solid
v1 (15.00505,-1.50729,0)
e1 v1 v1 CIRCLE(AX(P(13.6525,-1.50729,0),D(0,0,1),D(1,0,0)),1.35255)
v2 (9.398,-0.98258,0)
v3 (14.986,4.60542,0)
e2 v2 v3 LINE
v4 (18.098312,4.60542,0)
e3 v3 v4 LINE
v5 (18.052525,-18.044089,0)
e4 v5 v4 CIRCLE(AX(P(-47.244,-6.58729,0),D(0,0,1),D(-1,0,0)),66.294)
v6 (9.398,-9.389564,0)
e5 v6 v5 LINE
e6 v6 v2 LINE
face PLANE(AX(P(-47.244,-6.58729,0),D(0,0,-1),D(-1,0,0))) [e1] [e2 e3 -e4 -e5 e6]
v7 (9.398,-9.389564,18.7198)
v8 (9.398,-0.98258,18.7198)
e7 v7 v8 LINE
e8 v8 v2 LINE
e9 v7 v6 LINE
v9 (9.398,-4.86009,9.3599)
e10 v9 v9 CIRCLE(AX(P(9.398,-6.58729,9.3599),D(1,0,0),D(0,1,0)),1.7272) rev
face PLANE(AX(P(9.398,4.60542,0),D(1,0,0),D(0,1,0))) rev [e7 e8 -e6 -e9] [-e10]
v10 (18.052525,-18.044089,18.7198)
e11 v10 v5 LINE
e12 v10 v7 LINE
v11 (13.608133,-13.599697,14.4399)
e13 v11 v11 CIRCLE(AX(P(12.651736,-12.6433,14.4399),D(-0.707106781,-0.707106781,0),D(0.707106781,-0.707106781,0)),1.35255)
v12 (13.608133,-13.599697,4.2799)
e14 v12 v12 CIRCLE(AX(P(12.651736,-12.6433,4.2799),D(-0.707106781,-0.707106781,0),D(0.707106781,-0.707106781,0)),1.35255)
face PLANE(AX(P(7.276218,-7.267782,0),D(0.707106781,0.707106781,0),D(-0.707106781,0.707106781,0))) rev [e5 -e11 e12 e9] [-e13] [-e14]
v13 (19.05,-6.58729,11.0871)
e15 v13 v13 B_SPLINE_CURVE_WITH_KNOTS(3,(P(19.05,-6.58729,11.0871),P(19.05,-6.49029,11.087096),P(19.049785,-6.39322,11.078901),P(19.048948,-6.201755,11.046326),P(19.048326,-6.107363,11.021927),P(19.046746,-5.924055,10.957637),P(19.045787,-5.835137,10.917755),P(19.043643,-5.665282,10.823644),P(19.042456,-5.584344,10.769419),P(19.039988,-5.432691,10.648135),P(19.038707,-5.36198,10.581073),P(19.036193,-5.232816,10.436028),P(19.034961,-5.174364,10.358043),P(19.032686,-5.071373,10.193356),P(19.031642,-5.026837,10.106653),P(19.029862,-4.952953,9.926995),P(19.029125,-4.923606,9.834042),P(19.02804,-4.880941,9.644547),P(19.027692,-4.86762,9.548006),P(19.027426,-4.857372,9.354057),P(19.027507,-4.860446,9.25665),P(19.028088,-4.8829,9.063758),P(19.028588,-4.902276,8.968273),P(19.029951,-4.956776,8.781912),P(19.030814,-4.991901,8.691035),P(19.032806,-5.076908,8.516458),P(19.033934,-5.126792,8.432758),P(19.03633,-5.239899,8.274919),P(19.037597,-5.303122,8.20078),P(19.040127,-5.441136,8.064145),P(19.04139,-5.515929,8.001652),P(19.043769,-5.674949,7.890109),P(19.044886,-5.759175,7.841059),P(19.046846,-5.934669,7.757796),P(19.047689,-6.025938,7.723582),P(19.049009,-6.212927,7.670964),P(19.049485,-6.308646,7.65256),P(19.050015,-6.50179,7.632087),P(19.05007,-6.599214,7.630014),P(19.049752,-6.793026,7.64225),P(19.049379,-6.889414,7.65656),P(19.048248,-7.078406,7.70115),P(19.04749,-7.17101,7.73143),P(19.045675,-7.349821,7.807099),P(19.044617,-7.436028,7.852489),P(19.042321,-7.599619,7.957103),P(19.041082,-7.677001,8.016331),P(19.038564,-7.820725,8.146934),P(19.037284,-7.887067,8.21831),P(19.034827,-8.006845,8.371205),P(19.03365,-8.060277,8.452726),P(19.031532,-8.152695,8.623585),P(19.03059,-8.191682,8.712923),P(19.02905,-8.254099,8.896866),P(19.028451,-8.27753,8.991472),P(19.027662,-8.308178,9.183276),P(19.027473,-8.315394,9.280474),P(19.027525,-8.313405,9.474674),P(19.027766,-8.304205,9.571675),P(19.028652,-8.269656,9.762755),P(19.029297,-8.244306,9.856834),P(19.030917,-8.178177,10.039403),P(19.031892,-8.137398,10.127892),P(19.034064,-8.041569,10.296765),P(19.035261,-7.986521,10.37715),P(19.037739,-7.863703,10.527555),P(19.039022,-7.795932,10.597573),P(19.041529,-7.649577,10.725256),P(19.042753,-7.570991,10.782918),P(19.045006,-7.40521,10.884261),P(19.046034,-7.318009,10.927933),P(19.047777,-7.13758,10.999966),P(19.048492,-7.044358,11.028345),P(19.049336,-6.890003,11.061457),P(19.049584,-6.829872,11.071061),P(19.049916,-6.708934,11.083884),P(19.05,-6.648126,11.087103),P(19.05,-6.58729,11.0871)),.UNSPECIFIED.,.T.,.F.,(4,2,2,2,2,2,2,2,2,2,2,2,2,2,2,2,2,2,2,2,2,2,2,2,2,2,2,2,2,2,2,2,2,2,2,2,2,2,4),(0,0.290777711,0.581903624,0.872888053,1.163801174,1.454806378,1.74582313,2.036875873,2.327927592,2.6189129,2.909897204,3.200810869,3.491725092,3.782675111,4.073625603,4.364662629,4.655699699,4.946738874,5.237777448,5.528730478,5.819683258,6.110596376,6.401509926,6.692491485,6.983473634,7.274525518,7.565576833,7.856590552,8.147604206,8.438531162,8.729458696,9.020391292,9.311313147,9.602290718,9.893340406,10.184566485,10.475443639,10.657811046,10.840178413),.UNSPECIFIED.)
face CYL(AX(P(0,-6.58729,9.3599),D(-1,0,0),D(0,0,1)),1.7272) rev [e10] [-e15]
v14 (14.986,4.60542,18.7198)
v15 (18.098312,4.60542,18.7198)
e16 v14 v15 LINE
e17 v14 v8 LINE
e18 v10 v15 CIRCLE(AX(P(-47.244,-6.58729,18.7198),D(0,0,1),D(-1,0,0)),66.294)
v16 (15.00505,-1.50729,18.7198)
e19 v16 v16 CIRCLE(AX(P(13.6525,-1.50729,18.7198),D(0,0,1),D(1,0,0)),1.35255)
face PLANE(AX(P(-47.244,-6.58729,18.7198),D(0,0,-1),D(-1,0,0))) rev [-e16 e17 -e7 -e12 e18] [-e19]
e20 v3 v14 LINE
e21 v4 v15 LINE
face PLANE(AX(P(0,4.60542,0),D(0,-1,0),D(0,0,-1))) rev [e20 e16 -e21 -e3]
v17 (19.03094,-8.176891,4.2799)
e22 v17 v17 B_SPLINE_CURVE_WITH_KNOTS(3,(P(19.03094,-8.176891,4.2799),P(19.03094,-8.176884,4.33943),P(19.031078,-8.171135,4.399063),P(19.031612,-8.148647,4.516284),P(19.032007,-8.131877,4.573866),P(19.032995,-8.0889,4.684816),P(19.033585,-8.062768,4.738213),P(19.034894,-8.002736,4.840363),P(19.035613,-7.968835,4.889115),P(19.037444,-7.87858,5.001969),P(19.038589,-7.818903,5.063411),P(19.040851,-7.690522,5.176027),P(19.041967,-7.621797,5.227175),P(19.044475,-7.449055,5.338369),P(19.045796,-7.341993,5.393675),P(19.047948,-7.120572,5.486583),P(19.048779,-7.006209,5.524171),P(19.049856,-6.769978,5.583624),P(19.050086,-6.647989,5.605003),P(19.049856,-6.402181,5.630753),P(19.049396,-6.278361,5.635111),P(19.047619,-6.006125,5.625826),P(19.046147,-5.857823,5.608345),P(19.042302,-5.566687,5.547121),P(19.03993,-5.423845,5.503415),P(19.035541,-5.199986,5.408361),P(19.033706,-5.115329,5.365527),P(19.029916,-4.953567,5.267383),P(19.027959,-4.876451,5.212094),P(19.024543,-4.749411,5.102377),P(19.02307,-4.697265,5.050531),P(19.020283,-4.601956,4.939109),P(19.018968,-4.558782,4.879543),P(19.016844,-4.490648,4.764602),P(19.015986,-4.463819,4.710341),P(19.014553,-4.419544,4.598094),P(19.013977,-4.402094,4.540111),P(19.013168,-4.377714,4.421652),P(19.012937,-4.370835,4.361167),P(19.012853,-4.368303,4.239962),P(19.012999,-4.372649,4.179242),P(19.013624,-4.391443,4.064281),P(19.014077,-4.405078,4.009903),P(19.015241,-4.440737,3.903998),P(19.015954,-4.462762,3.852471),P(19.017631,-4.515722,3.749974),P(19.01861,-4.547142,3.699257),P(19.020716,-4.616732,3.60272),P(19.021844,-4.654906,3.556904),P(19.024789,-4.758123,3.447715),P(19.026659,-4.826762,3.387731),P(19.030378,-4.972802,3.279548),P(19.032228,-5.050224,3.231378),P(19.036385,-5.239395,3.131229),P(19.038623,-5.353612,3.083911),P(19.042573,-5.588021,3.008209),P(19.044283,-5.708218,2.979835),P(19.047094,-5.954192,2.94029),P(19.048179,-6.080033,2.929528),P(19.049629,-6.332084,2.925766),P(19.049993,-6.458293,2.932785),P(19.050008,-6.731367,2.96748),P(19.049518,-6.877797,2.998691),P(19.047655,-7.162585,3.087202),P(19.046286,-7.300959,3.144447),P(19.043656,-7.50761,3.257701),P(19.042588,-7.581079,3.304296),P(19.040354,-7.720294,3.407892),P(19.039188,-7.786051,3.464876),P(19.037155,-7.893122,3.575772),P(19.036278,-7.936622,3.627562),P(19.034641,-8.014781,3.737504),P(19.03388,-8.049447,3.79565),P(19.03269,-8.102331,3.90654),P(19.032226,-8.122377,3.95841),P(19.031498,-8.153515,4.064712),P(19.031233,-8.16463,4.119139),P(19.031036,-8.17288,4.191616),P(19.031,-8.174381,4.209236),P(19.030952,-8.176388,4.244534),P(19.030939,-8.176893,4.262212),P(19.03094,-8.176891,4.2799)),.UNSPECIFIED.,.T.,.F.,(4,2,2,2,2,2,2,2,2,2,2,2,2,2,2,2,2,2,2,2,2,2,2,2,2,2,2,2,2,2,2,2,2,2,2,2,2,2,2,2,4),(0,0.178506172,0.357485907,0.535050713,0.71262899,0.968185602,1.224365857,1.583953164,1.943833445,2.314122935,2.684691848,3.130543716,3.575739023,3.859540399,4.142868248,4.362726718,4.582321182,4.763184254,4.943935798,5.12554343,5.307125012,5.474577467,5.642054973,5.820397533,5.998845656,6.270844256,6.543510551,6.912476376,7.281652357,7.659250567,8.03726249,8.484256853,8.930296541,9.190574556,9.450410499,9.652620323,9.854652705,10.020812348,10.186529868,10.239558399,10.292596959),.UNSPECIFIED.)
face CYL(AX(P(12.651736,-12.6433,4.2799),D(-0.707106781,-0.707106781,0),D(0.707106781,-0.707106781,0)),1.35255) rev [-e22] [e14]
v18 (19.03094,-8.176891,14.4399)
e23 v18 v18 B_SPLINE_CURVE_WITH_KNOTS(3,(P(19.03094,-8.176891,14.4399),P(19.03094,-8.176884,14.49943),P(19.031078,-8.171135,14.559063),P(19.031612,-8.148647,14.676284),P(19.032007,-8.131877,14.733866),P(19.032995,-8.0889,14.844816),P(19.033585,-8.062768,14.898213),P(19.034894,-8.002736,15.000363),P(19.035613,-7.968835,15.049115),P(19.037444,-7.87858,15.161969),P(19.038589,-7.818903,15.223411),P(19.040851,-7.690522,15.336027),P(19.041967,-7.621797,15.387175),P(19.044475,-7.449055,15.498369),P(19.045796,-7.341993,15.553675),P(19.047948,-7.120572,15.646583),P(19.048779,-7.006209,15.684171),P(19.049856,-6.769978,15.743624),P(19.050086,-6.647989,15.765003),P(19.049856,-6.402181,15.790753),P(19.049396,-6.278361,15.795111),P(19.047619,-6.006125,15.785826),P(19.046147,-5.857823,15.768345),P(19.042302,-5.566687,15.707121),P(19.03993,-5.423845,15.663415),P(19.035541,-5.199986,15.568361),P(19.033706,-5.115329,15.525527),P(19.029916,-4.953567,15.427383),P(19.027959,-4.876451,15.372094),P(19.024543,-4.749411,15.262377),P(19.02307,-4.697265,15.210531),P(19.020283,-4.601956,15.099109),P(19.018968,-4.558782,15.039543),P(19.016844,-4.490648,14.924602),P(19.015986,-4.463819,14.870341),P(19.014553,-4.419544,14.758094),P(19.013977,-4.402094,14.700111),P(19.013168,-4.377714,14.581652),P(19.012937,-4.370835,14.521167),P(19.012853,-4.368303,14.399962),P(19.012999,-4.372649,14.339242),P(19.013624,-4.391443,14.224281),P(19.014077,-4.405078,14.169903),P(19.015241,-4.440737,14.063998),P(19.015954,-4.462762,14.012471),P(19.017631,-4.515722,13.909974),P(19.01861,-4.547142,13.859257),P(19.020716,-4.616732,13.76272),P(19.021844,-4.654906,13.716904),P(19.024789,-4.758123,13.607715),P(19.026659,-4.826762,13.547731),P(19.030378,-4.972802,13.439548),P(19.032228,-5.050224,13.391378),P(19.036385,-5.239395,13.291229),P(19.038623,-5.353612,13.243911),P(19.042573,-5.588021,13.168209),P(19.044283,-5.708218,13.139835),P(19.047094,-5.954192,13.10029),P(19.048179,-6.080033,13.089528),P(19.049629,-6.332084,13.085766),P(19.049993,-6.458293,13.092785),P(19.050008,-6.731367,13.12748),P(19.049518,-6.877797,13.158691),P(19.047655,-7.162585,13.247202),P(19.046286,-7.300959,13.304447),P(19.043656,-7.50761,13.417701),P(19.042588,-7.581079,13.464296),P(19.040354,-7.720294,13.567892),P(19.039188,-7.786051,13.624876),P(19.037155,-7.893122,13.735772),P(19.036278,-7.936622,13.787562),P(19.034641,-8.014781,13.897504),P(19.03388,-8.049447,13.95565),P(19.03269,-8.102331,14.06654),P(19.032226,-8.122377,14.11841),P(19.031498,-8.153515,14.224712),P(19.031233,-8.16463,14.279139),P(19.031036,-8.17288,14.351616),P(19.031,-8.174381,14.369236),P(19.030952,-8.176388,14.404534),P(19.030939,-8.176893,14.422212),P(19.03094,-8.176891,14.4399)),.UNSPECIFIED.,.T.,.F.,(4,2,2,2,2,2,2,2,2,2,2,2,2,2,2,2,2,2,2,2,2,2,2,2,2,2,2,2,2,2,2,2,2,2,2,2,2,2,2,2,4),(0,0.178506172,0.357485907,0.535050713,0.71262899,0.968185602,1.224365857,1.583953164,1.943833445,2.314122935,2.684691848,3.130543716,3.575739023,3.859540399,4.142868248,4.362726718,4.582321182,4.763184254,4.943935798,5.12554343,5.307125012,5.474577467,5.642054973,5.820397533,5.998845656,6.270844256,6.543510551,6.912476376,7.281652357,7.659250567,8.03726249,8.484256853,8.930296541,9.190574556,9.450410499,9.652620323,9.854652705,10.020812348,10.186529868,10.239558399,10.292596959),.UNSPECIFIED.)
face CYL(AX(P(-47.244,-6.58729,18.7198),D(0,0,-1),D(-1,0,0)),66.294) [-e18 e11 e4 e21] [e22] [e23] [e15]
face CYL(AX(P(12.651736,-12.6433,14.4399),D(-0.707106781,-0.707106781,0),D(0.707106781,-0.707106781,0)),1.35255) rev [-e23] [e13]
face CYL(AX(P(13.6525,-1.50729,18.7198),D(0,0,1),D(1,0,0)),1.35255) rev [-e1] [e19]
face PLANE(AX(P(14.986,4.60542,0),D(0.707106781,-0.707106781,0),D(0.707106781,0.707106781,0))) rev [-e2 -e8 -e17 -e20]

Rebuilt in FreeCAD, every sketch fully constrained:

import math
import FreeCAD as App
import Part
import Sketcher

V = App.Vector
Q = App.Units.Quantity


def edges_at(feature, points):
    """Names of the edges that pass closest to the given points."""
    edges = feature.Shape.Edges
    near = lambda p: min(range(len(edges)), key=lambda i: edges[i].distToShape(Part.Vertex(*p))[0])
    return sorted({f"Edge{near(p) + 1}" for p in points})


def add_polygon(sketch, points):
    """Adds a closed chain of lines whose ends are joined by coincident constraints."""
    first, n = sketch.GeometryCount, len(points)
    for a, b in zip(points, points[1:] + points[:1]):
        sketch.addGeometry(Part.LineSegment(App.Vector(*a, 0), App.Vector(*b, 0)), False)
    for i in range(n):
        sketch.addConstraint(Sketcher.Constraint("Coincident", first + i, 2, first + (i + 1) % n, 1))

doc = App.newDocument("Part")
params = doc.addObject("Spreadsheet::Sheet", "Params")
for row, (alias, value) in enumerate([
    ("sketch1_radius", "2.61 in"),
    ("pad1_length", "0.737 in"),
    ("hole_diameter", "0.1065 in"),
    ("sketch4_length", "0.367 in"),
    ("hole2_diameter", "0.1065 in"),
    ("sketch6_diameter", "0.136 in"),
    ("hole3_diameter", "0.136 in"),
    ("hole3_depth", "0.75 in"),
    ("sketch7_width", "0.37 in"),
    ("chamfer_size", "0.22 in"),
], start=1):
    params.set(f"A{row}", alias)
    params.set(f"B{row}", "=" + value)
    params.setAlias(f"B{row}", alias)

body = doc.addObject("PartDesign::Body", "Body")

sketch1 = body.newObject("Sketcher::SketchObject", "Sketch")
sketch1.AttachmentSupport = (doc.getObject("XY_Plane"), [""])
sketch1.MapMode = "FlatFace"
sketch1.addGeometry(Part.LineSegment(V(0, -13, 0), V(15, -28, 0)), False)
sketch1.addGeometry(Part.ArcOfCircle(Part.Circle(V(-47, -7, 0), V(0, 0, 1), 66), math.radians(-19), math.radians(19)), False)
sketch1.addGeometry(Part.LineSegment(V(15, 15, 0), V(0, 15, 0)), False)
sketch1.addGeometry(Part.LineSegment(V(0, 15, 0), V(0, -13, 0)), False)
sketch1.addConstraint(Sketcher.Constraint("Coincident", 0, 2, 1, 1))
sketch1.addConstraint(Sketcher.Constraint("Coincident", 1, 2, 2, 1))
sketch1.addConstraint(Sketcher.Constraint("Coincident", 2, 2, 3, 1))
sketch1.addConstraint(Sketcher.Constraint("Coincident", 3, 2, 0, 1))
sketch1.addConstraint(Sketcher.Constraint("Horizontal", 2))
sketch1.addConstraint(Sketcher.Constraint("Vertical", 3))
sketch1.addConstraint(Sketcher.Constraint("PointOnObject", 2, 2, -2))
sketch1.addConstraint(Sketcher.Constraint("Vertical", 0, 2, 1, 2))
sketch1.addConstraint(Sketcher.Constraint("Radius", 1, Q("2.61 in")))
sketch1.addConstraint(Sketcher.Constraint("Angle", 0, Q("-45 deg")))
sketch1.addConstraint(Sketcher.Constraint("DistanceX", 1, 3, -1, 1, Q("1.86 in")))
sketch1.addConstraint(Sketcher.Constraint("DistanceX", 2, 2, 2, 1, 15.324208))
sketch1.addConstraint(Sketcher.Constraint("DistanceY", 1, 3, -1, 1, 6.58729))
sketch1.setExpression("Constraints[8]", "Params.sketch1_radius")
pad1 = body.newObject("PartDesign::Pad", "Pad")
pad1.Profile = sketch1
pad1.setExpression("Length", "Params.pad1_length")

sketch2 = body.newObject("Sketcher::SketchObject", "Sketch001")
sketch2.AttachmentSupport = (doc.getObject("XY_Plane"), [""])
sketch2.MapMode = "FlatFace"
sketch2.AttachmentOffset = App.Placement(V(0, 0, 0.737 * 25.4), App.Rotation())
add_polygon(sketch2, [(0, 31), (0, 5), (30, 5), (30, 31)])
sketch2.addConstraint(Sketcher.Constraint("Vertical", 0))
sketch2.addConstraint(Sketcher.Constraint("Horizontal", 1))
sketch2.addConstraint(Sketcher.Constraint("Vertical", 2))
sketch2.addConstraint(Sketcher.Constraint("Horizontal", 3))
sketch2.addConstraint(Sketcher.Constraint("PointOnObject", 0, 2, -2))
sketch2.addConstraint(Sketcher.Constraint("DistanceX", 1, 1, 1, 2, 30.336119))
sketch2.addConstraint(Sketcher.Constraint("DistanceY", 0, 2, 0, 1, 26.439363))
sketch2.addConstraint(Sketcher.Constraint("DistanceY", -1, 1, 0, 2, 4.60542))
pocket1 = body.newObject("PartDesign::Pocket", "Pocket")
pocket1.Profile = sketch2
pocket1.Type = "ThroughAll"

sketch3 = body.newObject("Sketcher::SketchObject", "Sketch002")
sketch3.AttachmentSupport = (doc.getObject("XY_Plane"), [""])
sketch3.MapMode = "FlatFace"
sketch3.AttachmentOffset = App.Placement(V(0, 0, 0.737 * 25.4), App.Rotation())
sketch3.addGeometry(Part.Circle(V(13.7, -1.5, 0), V(0, 0, 1), 1.4), False)
sketch3.addConstraint(Sketcher.Constraint("Diameter", 0, Q("0.1065 in")))
sketch3.addConstraint(Sketcher.Constraint("DistanceX", -1, 1, 0, 3, Q("0.5375 in")))
sketch3.addConstraint(Sketcher.Constraint("DistanceY", 0, 3, -1, 1, 1.50729))
doc.recompute()
hole = body.newObject("PartDesign::Hole", "Hole")
hole.Profile = sketch3
hole.ThreadType = "None"
hole.setExpression("Diameter", "Params.hole_diameter")
hole.DepthType = "ThroughAll"

sketch4 = body.newObject("Sketcher::SketchObject", "Sketch003")
sketch4.AttachmentSupport = (doc.getObject("XY_Plane"), [""])
sketch4.MapMode = "FlatFace"
sketch4.AttachmentOffset = App.Placement(V(0, 0, 0.737 * 25.4), App.Rotation())
add_polygon(sketch4, [(7, -7), (1, -14), (15, -28), (22, -22)])
sketch4.addConstraint(Sketcher.Constraint("Perpendicular", 0, 1))
sketch4.addConstraint(Sketcher.Constraint("Perpendicular", 1, 2))
sketch4.addConstraint(Sketcher.Constraint("Perpendicular", 2, 3))
sketch4.addConstraint(Sketcher.Constraint("Angle", 0, Q("-135 deg")))
sketch4.addConstraint(Sketcher.Constraint("Distance", 0, Q("0.367 in")))
sketch4.addConstraint(Sketcher.Constraint("DistanceX", 0, 2, 1, 2, 14.639498))
sketch4.addConstraint(Sketcher.Constraint("DistanceX", -1, 1, 0, 2, 0.68471))
sketch4.addConstraint(Sketcher.Constraint("DistanceY", 0, 2, -1, 1, 13.85929))
sketch4.setExpression("Constraints[8]", "Params.sketch4_length")
pocket2 = body.newObject("PartDesign::Pocket", "Pocket001")
pocket2.Profile = sketch4
pocket2.Type = "ThroughAll"

sketch5 = body.newObject("Sketcher::SketchObject", "Sketch004")
sketch5.Placement = App.Placement(V(0.004218, 0.004218, 0), App.Rotation(V(-0.707106781, 0.707106781, 0), V(0, 0, -0.999999999), V(-0.707106781, -0.707106781, 0), "ZXY"))
sketch5.addGeometry(Part.Circle(V(-17.9, -14.4, 0), V(0, 0, 1), 1.4), False)
sketch5.addGeometry(Part.Circle(V(-17.9, -4.3, 0), V(0, 0, 1), 1.4), False)
sketch5.addConstraint(Sketcher.Constraint("Equal", 0, 1))
sketch5.addConstraint(Sketcher.Constraint("Vertical", 0, 3, 1, 3))
sketch5.addConstraint(Sketcher.Constraint("Diameter", 0, Q("0.1065 in")))
sketch5.addConstraint(Sketcher.Constraint("DistanceY", 0, 3, 1, 3, Q("0.4 in")))
sketch5.addConstraint(Sketcher.Constraint("DistanceY", 0, 3, -1, 1, Q("0.5685 in")))
sketch5.addConstraint(Sketcher.Constraint("DistanceX", 0, 3, -1, 1, 17.886291))
doc.recompute()
hole2 = body.newObject("PartDesign::Hole", "Hole001")
hole2.Profile = sketch5
hole2.ThreadType = "None"
hole2.setExpression("Diameter", "Params.hole2_diameter")
hole2.DepthType = "ThroughAll"

sketch6 = body.newObject("Sketcher::SketchObject", "Sketch005")
sketch6.AttachmentSupport = (doc.getObject("YZ_Plane"), [""])
sketch6.MapMode = "FlatFace"
sketch6.addGeometry(Part.Circle(V(-6.6, 9.4, 0), V(0, 0, 1), 1.7), False)
sketch6.addConstraint(Sketcher.Constraint("Diameter", 0, Q("0.136 in")))
sketch6.addConstraint(Sketcher.Constraint("DistanceY", -1, 1, 0, 3, Q("0.3685 in")))
sketch6.addConstraint(Sketcher.Constraint("DistanceX", 0, 3, -1, 1, 6.58729))
sketch6.setExpression("Constraints[0]", "Params.sketch6_diameter")
doc.recompute()
hole3 = body.newObject("PartDesign::Hole", "Hole002")
hole3.Profile = sketch6
hole3.ThreadType = "None"
hole3.setExpression("Diameter", "Params.hole3_diameter")
hole3.DepthType = "Dimension"
hole3.setExpression("Depth", "Params.hole3_depth")
hole3.DrillPoint = "Angled"
hole3.DrillPointAngle = 118
hole3.Reversed = True

sketch7 = body.newObject("Sketcher::SketchObject", "Sketch006")
sketch7.AttachmentSupport = (doc.getObject("XY_Plane"), [""])
sketch7.MapMode = "FlatFace"
sketch7.AttachmentOffset = App.Placement(V(0, 0, 0.737 * 25.4), App.Rotation())
add_polygon(sketch7, [(0, 5), (0, -17), (9, -17), (9, 5)])
sketch7.addConstraint(Sketcher.Constraint("Vertical", 0))
sketch7.addConstraint(Sketcher.Constraint("Horizontal", 1))
sketch7.addConstraint(Sketcher.Constraint("Vertical", 2))
sketch7.addConstraint(Sketcher.Constraint("Horizontal", 3))
sketch7.addConstraint(Sketcher.Constraint("PointOnObject", 0, 2, -2))
sketch7.addConstraint(Sketcher.Constraint("DistanceX", 1, 1, 1, 2, Q("0.37 in")))
sketch7.addConstraint(Sketcher.Constraint("DistanceY", 0, 2, 0, 1, 21.690053))
sketch7.addConstraint(Sketcher.Constraint("DistanceY", -1, 1, 2, 2, 4.60542))
sketch7.setExpression("Constraints[9]", "Params.sketch7_width")
pocket3 = body.newObject("PartDesign::Pocket", "Pocket002")
pocket3.Profile = sketch7
pocket3.Type = "ThroughAll"
doc.recompute()

chamfer = body.newObject("PartDesign::Chamfer", "Chamfer")
chamfer.Base = (pocket3, edges_at(pocket3, [(9.398, 4.605, 9.36)]))
chamfer.setExpression("Size", "Params.chamfer_size")

doc.recompute()
